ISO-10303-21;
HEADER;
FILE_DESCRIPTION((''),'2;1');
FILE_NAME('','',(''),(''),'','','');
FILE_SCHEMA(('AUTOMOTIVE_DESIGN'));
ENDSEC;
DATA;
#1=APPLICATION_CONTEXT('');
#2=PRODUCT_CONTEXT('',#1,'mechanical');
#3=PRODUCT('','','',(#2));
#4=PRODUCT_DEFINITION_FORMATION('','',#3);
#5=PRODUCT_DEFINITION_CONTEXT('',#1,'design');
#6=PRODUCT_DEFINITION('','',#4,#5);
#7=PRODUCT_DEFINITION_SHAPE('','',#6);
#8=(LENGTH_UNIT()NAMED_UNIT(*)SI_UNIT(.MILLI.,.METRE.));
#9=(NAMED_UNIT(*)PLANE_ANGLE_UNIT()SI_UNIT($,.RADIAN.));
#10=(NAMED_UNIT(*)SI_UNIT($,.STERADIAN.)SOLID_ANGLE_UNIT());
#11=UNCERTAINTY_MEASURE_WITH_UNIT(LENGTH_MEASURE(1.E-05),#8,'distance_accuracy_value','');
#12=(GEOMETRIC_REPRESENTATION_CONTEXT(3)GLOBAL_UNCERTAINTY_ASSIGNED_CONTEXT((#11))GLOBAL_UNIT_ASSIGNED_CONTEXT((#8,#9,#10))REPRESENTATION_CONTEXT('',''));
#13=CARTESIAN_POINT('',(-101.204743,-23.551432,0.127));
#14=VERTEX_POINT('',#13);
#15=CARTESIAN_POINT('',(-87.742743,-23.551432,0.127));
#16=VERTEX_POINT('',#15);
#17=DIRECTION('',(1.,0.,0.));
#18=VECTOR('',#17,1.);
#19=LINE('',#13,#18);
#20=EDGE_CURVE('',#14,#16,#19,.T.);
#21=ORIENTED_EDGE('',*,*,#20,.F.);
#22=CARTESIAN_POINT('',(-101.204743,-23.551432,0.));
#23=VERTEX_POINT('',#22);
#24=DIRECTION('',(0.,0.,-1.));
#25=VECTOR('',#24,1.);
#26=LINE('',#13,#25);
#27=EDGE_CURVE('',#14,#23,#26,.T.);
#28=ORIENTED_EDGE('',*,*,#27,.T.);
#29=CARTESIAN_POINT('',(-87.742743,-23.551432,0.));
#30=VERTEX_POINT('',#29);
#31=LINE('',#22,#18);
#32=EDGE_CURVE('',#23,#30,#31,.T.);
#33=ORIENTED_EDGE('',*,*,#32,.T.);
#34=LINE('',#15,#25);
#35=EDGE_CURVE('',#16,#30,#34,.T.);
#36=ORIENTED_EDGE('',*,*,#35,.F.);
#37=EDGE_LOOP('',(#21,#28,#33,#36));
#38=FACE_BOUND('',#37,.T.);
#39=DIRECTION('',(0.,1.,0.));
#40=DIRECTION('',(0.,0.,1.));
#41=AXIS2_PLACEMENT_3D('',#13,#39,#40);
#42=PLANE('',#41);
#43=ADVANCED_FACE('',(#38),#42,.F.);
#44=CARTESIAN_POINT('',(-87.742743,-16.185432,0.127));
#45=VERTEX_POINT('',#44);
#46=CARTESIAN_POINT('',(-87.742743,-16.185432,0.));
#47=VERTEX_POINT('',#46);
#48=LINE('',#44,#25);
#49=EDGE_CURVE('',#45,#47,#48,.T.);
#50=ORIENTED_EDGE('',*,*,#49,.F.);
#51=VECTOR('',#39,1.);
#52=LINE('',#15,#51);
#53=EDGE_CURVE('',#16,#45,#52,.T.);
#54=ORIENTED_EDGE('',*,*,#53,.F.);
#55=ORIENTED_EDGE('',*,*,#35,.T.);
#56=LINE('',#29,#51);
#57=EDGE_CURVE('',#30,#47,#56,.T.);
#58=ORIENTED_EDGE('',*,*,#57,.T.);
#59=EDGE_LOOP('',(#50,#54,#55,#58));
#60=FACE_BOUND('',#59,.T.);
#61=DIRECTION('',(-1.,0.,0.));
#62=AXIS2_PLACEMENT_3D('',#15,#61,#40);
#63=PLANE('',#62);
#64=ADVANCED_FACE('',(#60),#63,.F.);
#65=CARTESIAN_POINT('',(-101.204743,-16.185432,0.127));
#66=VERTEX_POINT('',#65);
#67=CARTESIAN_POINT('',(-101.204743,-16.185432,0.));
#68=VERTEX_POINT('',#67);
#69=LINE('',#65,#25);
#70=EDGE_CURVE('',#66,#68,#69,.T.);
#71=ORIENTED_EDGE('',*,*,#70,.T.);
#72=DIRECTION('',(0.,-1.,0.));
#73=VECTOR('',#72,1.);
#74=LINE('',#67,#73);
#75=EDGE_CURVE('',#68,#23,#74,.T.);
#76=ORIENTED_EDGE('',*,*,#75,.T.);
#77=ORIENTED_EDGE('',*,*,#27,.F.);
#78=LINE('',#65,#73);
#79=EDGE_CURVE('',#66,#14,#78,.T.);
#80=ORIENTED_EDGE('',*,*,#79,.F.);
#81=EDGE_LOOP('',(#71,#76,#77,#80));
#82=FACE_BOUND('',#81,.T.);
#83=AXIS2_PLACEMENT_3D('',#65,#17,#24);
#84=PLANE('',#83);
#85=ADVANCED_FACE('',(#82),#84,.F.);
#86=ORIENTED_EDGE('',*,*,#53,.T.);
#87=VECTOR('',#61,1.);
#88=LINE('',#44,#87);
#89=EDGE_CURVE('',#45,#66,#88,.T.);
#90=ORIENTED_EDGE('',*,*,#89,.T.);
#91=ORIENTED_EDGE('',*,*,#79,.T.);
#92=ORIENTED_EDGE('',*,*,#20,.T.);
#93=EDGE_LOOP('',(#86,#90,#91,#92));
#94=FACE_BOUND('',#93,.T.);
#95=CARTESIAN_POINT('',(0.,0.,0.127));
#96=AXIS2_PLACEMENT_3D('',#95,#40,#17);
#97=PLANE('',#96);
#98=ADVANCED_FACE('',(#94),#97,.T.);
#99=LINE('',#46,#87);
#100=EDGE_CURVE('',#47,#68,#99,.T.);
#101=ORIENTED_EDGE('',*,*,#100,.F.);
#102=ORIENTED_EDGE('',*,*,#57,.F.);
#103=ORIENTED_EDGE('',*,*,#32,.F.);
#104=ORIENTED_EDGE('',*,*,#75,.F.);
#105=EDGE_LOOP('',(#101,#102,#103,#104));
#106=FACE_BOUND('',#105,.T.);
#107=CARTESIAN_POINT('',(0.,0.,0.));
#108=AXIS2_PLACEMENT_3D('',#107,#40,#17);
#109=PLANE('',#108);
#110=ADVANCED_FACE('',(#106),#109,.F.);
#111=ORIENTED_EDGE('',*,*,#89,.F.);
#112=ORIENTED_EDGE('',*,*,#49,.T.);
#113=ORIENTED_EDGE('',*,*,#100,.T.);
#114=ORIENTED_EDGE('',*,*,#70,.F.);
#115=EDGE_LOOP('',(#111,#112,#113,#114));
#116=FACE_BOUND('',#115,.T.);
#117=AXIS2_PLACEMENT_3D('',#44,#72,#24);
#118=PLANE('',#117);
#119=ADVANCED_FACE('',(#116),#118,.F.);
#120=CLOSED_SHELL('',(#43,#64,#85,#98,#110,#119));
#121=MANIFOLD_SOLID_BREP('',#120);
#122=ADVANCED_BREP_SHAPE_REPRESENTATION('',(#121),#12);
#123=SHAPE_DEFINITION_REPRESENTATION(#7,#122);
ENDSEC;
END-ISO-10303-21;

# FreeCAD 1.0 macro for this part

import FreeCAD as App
import Part
import Sketcher

V = App.Vector
Q = App.Units.Quantity

doc = App.newDocument("Part")
body = doc.addObject("PartDesign::Body", "Body")

sketch1 = body.newObject("Sketcher::SketchObject", "Sketch")
sketch1.AttachmentSupport = (doc.getObject("XY_Plane"), [""])
sketch1.MapMode = "FlatFace"
sketch1.addGeometry(Part.LineSegment(V(-101, -16, 0), V(-101, -24, 0)), False)
sketch1.addGeometry(Part.LineSegment(V(-101, -24, 0), V(-88, -24, 0)), False)
sketch1.addGeometry(Part.LineSegment(V(-88, -24, 0), V(-88, -16, 0)), False)
sketch1.addGeometry(Part.LineSegment(V(-88, -16, 0), V(-101, -16, 0)), False)
sketch1.addConstraint(Sketcher.Constraint("Coincident", 0, 2, 1, 1))
sketch1.addConstraint(Sketcher.Constraint("Coincident", 1, 2, 2, 1))
sketch1.addConstraint(Sketcher.Constraint("Coincident", 2, 2, 3, 1))
sketch1.addConstraint(Sketcher.Constraint("Coincident", 3, 2, 0, 1))
sketch1.addConstraint(Sketcher.Constraint("Vertical", 0))
sketch1.addConstraint(Sketcher.Constraint("Horizontal", 1))
sketch1.addConstraint(Sketcher.Constraint("Vertical", 2))
sketch1.addConstraint(Sketcher.Constraint("Horizontal", 3))
sketch1.addConstraint(Sketcher.Constraint("DistanceX", 1, 1, 1, 2, Q("0.53 in")))
sketch1.addConstraint(Sketcher.Constraint("DistanceY", 0, 2, 0, 1, Q("0.29 in")))
sketch1.addConstraint(Sketcher.Constraint("DistanceX", 0, 2, -1, 1, Q("101.204743 mm")))
sketch1.addConstraint(Sketcher.Constraint("DistanceY", 0, 2, -1, 1, Q("23.551432 mm")))
pad1 = body.newObject("PartDesign::Pad", "Pad")
pad1.Profile = sketch1
pad1.Length = Q("0.005 in")

doc.recompute()
